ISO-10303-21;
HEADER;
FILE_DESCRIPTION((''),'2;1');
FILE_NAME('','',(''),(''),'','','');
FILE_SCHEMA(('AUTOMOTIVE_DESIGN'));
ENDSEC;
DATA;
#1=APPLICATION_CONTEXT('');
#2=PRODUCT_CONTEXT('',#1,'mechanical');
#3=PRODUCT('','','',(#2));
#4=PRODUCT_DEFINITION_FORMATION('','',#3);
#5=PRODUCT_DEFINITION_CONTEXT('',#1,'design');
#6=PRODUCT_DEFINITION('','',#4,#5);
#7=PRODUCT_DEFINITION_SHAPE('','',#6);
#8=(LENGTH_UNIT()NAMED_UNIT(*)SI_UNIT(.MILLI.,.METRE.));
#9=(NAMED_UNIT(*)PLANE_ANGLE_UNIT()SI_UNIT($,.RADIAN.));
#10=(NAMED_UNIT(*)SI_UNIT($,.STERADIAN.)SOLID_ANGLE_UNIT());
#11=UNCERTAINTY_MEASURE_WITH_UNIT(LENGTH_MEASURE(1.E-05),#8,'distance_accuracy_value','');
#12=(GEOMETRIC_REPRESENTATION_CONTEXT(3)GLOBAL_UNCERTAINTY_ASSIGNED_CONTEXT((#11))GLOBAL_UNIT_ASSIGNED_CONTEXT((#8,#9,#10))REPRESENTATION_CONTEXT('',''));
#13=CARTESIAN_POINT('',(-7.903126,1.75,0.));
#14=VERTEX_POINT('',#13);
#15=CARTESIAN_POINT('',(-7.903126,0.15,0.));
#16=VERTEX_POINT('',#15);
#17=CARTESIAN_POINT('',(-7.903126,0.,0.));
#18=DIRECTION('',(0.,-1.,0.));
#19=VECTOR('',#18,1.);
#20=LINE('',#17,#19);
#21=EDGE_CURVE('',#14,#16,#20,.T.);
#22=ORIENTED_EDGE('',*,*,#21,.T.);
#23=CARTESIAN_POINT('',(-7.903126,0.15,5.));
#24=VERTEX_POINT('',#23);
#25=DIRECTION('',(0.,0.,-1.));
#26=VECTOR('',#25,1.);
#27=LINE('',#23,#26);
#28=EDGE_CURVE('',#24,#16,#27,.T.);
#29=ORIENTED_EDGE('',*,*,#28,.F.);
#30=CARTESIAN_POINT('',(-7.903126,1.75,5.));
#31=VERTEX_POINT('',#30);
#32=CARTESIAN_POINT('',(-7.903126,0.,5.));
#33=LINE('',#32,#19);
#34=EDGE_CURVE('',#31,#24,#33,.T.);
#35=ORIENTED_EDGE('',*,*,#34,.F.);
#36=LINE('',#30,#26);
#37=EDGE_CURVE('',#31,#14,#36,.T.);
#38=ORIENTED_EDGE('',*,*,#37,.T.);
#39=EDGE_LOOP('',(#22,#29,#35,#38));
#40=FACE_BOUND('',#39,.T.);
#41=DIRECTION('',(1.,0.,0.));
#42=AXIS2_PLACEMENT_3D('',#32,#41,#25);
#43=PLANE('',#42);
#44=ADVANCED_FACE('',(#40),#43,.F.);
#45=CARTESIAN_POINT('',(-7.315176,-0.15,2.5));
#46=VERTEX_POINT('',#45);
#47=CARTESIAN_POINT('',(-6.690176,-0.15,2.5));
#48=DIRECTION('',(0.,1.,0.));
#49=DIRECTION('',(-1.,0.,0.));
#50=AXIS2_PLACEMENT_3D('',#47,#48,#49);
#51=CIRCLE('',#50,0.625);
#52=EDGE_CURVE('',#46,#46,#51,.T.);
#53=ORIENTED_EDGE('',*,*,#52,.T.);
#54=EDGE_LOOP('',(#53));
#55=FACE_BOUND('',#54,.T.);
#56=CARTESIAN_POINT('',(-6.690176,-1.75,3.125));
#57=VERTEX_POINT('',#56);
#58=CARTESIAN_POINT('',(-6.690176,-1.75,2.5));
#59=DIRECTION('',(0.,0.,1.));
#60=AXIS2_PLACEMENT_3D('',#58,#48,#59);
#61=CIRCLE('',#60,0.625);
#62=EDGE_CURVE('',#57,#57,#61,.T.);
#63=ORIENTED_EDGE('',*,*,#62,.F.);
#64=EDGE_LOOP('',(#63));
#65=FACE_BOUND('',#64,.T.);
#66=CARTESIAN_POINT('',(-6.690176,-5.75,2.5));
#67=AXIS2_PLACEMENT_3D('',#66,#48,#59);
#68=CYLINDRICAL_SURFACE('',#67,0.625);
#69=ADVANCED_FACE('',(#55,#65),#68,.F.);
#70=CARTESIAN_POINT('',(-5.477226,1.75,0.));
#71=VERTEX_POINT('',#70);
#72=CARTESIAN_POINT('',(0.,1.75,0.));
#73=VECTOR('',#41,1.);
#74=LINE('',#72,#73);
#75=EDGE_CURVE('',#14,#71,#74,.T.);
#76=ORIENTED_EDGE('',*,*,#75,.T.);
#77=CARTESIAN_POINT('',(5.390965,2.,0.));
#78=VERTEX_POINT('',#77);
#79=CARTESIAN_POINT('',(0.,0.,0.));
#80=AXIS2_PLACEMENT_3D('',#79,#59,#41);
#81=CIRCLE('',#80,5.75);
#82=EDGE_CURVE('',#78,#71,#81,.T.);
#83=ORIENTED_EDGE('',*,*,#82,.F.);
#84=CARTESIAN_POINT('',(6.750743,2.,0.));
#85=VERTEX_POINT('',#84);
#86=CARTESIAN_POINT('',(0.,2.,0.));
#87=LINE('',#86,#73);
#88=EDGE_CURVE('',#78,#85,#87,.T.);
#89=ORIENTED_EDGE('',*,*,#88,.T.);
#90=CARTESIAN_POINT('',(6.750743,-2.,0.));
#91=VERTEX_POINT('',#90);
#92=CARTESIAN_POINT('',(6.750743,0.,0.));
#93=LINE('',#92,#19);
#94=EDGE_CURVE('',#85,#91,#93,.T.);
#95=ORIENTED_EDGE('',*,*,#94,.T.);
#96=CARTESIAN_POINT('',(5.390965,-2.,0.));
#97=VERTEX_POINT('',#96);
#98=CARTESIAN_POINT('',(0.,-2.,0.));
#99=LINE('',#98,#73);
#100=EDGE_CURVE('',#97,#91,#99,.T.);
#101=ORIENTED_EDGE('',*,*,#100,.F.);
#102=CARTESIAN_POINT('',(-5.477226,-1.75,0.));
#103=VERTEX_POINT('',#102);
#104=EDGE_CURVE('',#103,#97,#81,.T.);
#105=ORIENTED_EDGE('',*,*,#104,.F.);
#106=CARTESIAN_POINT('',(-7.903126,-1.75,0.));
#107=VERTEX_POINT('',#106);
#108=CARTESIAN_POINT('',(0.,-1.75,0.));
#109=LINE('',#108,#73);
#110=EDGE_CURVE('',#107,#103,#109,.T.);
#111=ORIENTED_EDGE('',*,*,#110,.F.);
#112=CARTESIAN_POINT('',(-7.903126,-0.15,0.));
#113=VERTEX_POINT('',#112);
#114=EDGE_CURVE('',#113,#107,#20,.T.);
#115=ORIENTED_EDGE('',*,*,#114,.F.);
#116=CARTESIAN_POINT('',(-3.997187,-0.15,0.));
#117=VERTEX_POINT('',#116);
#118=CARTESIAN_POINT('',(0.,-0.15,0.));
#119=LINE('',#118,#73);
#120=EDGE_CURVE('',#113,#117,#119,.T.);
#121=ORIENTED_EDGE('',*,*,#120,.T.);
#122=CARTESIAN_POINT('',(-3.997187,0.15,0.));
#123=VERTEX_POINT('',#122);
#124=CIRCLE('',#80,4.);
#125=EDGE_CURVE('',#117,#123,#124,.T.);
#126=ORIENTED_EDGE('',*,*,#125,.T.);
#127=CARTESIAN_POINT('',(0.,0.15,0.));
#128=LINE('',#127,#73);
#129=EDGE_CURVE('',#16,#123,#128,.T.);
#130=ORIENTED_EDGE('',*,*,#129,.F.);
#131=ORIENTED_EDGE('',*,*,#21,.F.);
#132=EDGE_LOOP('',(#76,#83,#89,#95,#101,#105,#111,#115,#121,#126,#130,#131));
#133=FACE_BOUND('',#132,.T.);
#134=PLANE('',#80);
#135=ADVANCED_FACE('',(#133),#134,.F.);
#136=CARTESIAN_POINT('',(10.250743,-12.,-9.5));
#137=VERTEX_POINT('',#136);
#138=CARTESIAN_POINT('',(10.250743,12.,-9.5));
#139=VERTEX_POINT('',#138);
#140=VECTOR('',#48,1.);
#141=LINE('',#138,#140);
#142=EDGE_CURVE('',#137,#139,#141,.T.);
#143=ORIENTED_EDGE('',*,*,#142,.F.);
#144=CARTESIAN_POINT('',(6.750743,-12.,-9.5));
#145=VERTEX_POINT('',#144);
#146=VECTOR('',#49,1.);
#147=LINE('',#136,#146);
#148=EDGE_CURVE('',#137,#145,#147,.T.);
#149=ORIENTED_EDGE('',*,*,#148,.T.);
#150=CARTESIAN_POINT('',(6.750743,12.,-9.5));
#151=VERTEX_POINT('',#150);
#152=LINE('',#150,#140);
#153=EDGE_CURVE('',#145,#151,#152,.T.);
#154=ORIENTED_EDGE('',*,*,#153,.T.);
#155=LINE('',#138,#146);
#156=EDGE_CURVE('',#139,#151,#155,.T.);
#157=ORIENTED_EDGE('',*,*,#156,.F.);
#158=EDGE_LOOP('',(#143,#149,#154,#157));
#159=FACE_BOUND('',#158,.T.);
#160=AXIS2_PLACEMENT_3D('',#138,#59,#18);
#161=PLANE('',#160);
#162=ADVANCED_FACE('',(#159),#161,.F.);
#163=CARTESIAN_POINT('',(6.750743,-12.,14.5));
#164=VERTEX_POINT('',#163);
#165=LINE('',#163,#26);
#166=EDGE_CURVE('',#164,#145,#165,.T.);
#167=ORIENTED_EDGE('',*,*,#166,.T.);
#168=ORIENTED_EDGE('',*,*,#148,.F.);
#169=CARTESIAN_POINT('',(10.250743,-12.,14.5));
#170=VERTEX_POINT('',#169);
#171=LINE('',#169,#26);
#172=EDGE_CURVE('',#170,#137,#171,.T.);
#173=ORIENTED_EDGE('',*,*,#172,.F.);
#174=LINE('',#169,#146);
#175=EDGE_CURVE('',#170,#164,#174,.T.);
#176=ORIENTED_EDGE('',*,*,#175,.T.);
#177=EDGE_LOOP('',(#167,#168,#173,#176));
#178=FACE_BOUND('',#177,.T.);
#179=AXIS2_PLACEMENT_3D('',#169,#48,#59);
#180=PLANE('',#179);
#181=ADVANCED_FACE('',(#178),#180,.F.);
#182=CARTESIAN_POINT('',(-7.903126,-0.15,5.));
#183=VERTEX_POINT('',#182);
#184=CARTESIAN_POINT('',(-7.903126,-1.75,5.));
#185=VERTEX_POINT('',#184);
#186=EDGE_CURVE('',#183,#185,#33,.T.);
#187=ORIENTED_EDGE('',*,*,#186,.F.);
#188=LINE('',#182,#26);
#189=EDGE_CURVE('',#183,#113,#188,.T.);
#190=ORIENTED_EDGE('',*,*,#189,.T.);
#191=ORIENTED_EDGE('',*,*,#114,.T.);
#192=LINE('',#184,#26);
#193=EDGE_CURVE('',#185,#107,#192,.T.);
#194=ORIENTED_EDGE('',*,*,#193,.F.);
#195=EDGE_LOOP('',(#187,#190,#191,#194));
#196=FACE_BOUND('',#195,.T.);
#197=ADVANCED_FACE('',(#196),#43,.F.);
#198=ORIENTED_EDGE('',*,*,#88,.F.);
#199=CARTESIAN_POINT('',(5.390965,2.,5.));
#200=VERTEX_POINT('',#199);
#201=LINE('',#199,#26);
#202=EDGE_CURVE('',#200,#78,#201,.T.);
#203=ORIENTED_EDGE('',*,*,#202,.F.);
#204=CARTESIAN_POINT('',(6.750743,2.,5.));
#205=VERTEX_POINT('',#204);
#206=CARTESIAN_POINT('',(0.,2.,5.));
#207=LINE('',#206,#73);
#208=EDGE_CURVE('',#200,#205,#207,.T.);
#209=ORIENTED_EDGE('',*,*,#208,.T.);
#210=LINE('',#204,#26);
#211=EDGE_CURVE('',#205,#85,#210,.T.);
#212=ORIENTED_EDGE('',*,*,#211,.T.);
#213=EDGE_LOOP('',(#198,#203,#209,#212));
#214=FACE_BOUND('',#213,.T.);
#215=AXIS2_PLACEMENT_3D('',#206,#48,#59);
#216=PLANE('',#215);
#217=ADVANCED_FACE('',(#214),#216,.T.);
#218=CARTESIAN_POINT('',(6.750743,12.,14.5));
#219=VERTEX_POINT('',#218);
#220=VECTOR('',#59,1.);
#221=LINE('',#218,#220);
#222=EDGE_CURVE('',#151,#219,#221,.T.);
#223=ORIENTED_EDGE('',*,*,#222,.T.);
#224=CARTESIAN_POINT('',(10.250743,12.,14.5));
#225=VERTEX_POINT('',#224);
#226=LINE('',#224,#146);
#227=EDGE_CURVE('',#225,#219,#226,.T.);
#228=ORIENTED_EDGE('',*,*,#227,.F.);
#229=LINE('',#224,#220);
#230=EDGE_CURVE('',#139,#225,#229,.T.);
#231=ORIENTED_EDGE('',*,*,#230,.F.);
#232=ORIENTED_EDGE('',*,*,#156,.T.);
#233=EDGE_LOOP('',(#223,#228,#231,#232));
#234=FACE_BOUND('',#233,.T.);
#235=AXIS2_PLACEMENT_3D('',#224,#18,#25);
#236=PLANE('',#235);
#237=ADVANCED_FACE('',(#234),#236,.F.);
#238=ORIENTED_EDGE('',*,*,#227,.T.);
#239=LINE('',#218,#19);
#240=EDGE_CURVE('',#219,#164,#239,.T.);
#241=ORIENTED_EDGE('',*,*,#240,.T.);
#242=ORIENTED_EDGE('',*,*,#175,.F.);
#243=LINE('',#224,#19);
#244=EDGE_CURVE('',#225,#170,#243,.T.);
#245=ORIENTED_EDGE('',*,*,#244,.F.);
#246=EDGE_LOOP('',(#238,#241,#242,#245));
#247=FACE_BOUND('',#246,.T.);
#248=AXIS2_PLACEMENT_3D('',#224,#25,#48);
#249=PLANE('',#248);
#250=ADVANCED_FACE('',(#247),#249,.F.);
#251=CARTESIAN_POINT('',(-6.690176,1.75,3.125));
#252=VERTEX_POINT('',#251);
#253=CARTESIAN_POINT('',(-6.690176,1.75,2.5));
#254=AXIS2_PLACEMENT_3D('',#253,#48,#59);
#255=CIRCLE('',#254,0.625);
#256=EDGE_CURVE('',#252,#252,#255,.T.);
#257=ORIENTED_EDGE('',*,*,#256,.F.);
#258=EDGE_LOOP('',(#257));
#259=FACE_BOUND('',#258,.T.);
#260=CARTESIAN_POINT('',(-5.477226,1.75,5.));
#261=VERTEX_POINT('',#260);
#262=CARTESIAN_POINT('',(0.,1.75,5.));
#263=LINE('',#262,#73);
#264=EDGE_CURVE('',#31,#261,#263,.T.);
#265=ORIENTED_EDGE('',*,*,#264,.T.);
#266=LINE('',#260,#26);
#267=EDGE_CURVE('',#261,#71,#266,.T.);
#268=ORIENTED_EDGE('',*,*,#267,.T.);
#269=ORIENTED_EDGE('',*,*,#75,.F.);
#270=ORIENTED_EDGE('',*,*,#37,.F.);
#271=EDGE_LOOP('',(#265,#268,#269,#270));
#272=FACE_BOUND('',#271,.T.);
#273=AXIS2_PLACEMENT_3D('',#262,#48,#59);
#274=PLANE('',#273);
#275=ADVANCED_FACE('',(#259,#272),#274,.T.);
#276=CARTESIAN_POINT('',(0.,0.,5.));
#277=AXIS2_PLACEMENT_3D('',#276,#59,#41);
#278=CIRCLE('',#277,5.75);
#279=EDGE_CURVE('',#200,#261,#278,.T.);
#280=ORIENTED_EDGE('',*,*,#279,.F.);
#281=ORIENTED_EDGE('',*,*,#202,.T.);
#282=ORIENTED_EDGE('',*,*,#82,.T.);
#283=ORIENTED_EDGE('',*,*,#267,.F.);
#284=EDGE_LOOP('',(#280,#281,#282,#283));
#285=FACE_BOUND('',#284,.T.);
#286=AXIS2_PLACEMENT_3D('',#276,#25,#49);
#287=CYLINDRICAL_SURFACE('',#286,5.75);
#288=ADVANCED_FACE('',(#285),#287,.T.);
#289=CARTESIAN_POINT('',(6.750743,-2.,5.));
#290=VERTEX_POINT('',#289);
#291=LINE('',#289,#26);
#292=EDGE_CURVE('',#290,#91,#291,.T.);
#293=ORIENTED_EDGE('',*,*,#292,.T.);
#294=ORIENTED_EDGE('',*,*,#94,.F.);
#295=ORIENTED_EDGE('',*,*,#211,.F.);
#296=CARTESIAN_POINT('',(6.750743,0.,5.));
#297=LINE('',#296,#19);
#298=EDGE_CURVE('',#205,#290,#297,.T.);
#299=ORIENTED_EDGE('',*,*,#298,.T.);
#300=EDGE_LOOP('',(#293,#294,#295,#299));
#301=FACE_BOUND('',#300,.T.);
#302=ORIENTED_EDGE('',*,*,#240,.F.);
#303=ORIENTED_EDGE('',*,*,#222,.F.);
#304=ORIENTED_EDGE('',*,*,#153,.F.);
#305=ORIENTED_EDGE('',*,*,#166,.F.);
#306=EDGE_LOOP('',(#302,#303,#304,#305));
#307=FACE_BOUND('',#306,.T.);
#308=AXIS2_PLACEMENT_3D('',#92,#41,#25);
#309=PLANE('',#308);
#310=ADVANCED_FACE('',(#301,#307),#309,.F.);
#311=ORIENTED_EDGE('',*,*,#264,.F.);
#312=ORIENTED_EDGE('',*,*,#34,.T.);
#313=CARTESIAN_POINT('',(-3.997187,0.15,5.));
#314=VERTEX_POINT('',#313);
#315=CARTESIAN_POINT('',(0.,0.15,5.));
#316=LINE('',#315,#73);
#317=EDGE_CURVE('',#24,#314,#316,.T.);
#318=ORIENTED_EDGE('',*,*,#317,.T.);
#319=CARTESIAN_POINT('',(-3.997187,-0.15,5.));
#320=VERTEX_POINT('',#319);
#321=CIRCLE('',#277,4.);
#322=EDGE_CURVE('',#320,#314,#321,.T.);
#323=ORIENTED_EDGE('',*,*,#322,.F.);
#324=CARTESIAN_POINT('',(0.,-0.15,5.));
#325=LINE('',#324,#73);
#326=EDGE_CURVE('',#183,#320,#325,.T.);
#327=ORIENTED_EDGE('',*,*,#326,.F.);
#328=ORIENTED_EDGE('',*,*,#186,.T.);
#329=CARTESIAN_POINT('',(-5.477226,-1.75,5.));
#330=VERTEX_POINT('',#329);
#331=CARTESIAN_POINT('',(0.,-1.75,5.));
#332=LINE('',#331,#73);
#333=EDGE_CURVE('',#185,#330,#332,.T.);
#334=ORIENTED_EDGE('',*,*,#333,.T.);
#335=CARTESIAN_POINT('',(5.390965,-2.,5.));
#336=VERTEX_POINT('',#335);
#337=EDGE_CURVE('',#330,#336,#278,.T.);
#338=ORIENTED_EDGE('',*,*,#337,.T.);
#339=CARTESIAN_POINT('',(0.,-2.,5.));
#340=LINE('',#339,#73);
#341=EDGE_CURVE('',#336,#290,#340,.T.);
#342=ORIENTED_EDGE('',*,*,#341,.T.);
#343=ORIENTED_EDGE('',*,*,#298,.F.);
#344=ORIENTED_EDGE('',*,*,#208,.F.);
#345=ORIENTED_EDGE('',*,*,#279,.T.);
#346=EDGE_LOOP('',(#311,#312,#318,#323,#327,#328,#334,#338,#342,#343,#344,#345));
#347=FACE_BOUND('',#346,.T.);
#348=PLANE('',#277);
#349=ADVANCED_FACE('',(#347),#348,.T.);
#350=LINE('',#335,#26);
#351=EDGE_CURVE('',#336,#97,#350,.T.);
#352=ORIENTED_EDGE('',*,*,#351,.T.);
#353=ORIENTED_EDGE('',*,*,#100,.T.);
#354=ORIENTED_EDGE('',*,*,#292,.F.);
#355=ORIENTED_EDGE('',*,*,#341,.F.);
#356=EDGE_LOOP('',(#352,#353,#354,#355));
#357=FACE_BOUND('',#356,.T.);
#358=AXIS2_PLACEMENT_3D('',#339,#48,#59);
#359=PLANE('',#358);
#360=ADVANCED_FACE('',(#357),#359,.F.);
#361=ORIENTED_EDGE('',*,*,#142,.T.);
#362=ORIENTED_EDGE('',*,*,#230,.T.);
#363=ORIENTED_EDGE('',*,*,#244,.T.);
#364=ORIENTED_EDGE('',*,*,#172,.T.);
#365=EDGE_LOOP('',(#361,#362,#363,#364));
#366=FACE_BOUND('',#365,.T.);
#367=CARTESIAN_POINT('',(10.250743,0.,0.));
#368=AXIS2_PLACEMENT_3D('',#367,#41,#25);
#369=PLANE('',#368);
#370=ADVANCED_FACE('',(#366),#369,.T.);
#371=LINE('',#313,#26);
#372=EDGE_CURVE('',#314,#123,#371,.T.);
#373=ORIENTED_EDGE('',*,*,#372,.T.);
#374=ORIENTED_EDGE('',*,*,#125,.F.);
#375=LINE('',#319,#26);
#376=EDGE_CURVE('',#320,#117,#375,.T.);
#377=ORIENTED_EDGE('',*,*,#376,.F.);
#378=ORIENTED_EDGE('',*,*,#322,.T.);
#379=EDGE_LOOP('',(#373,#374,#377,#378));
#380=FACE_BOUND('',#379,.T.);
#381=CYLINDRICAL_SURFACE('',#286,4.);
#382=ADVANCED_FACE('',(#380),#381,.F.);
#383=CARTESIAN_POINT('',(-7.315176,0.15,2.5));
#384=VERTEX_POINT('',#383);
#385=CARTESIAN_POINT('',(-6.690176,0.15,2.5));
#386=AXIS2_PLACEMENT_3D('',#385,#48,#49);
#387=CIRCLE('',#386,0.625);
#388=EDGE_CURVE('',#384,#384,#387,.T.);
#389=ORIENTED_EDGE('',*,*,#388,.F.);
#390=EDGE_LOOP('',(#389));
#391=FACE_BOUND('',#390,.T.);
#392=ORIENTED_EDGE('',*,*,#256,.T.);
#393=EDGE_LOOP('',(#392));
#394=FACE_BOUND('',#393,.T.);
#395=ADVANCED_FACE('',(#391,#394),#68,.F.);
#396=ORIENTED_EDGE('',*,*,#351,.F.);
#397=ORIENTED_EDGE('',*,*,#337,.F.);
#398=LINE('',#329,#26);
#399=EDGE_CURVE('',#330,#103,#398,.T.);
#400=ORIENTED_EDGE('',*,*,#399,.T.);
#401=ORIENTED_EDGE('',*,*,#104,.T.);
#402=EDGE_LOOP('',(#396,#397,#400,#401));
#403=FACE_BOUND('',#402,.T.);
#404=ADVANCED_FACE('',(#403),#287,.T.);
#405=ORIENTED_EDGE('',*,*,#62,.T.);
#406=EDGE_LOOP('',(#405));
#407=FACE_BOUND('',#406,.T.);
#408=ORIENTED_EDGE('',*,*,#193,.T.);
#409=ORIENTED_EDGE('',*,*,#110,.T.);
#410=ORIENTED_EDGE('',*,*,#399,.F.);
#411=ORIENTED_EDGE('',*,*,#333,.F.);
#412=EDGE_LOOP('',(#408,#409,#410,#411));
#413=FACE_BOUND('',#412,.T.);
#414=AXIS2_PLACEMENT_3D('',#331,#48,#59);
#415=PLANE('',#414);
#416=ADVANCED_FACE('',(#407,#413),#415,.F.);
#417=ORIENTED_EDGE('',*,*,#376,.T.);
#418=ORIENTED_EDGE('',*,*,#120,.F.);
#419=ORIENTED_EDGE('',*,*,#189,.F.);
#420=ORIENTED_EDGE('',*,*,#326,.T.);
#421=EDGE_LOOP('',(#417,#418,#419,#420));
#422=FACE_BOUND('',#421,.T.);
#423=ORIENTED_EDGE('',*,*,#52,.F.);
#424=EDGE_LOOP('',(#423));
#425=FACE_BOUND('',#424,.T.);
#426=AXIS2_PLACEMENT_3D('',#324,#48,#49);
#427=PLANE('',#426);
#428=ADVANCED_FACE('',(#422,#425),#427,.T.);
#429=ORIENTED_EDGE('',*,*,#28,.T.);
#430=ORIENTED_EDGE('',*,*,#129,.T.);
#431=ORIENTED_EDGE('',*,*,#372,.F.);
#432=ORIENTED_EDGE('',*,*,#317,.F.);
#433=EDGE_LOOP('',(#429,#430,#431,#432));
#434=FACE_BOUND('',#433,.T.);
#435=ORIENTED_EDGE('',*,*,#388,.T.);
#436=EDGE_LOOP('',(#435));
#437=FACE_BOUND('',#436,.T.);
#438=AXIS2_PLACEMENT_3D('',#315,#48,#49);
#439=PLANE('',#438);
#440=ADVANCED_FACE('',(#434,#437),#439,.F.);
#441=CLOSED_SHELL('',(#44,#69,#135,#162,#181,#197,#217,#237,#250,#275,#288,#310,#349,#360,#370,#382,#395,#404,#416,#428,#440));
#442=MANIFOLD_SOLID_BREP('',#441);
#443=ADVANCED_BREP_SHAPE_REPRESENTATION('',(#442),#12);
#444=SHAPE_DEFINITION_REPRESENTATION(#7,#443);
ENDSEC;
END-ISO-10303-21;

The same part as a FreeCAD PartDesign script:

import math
import FreeCAD as App
import Part
import Sketcher

V = App.Vector
Q = App.Units.Quantity


def add_polygon(sketch, points):
    """Adds a closed chain of lines whose ends are joined by coincident constraints."""
    first, n = sketch.GeometryCount, len(points)
    for a, b in zip(points, points[1:] + points[:1]):
        sketch.addGeometry(Part.LineSegment(App.Vector(*a, 0), App.Vector(*b, 0)), False)
    for i in range(n):
        sketch.addConstraint(Sketcher.Constraint("Coincident", first + i, 2, first + (i + 1) % n, 1))

doc = App.newDocument("Part")
body = doc.addObject("PartDesign::Body", "Body")

sketch1 = body.newObject("Sketcher::SketchObject", "Sketch")
sketch1.AttachmentSupport = (doc.getObject("XY_Plane"), [""])
sketch1.MapMode = "FlatFace"
sketch1.addGeometry([
    Part.ArcOfCircle(Part.Circle(V(0, 0, 0), V(0, 0, 1), 5.8), math.radians(20), math.radians(162)),
    Part.LineSegment(V(-5.5, 1.8, 0), V(-7.9, 1.8, 0)),
    Part.LineSegment(V(-7.9, 1.8, 0), V(-7.9, 0.1, 0)),
    Part.LineSegment(V(-7.9, 0.1, 0), V(-4, 0.1, 0)),
    Part.ArcOfCircle(Part.Circle(V(0, 0, 0), V(0, 0, 1), 4), math.radians(154), math.radians(178)),
    Part.ArcOfCircle(Part.Circle(V(0, 0, 0), V(0, 0, 1), 4), math.radians(0), math.radians(154)),
    Part.ArcOfCircle(Part.Circle(V(0, 0, 0), V(0, 0, 1), 4), math.radians(-154), math.radians(0)),
    Part.ArcOfCircle(Part.Circle(V(0, 0, 0), V(0, 0, 1), 4), math.radians(-178), math.radians(-154)),
    Part.LineSegment(V(-4, -0.1, 0), V(-7.9, -0.1, 0)),
    Part.LineSegment(V(-7.9, -0.1, 0), V(-7.9, -1.8, 0)),
    Part.LineSegment(V(-7.9, -1.8, 0), V(-5.5, -1.8, 0)),
    Part.ArcOfCircle(Part.Circle(V(0, 0, 0), V(0, 0, 1), 5.8), math.radians(-162), math.radians(-20)),
    Part.LineSegment(V(5.4, -2, 0), V(6.8, -2, 0)),
    Part.LineSegment(V(6.8, -2, 0), V(6.8, 2, 0)),
    Part.LineSegment(V(6.8, 2, 0), V(5.4, 2, 0)),
], False)
sketch1.addConstraint([
    Sketcher.Constraint("Coincident", 0, 2, 1, 1),
    Sketcher.Constraint("Coincident", 1, 2, 2, 1),
    Sketcher.Constraint("Coincident", 2, 2, 3, 1),
    Sketcher.Constraint("Coincident", 3, 2, 4, 2),
    Sketcher.Constraint("Tangent", 4, 1, 5, 2),
    Sketcher.Constraint("Tangent", 5, 1, 6, 2),
    Sketcher.Constraint("Tangent", 6, 1, 7, 2),
    Sketcher.Constraint("Coincident", 7, 1, 8, 1),
    Sketcher.Constraint("Coincident", 8, 2, 9, 1),
    Sketcher.Constraint("Coincident", 9, 2, 10, 1),
    Sketcher.Constraint("Coincident", 10, 2, 11, 1),
    Sketcher.Constraint("Coincident", 11, 2, 12, 1),
    Sketcher.Constraint("Coincident", 12, 2, 13, 1),
    Sketcher.Constraint("Coincident", 13, 2, 14, 1),
    Sketcher.Constraint("Coincident", 14, 2, 0, 1),
    Sketcher.Constraint("Horizontal", 1),
    Sketcher.Constraint("Vertical", 2),
    Sketcher.Constraint("Horizontal", 3),
    Sketcher.Constraint("Horizontal", 8),
    Sketcher.Constraint("Vertical", 9),
    Sketcher.Constraint("Horizontal", 10),
    Sketcher.Constraint("Horizontal", 12),
    Sketcher.Constraint("Vertical", 13),
    Sketcher.Constraint("Horizontal", 14),
    Sketcher.Constraint("Coincident", 0, 3, -1, 1),
    Sketcher.Constraint("Coincident", 4, 3, -1, 1),
    Sketcher.Constraint("Coincident", 6, 3, -1, 1),
    Sketcher.Constraint("Coincident", 11, 3, -1, 1),
    Sketcher.Constraint("Equal", 6, 7),
    Sketcher.Constraint("Equal", 0, 11),
    Sketcher.Constraint("Symmetric", 2, 2, 8, 2, -1),
    Sketcher.Constraint("PointOnObject", 5, 1, -1),
    Sketcher.Constraint("Horizontal", 1, 2, 4, 1),
    Sketcher.Constraint("Horizontal", 6, 1, 9, 2),
    Sketcher.Constraint("Vertical", 4, 1, 6, 1),
    Sketcher.Constraint("Vertical", 11, 2, 14, 2),
    Sketcher.Constraint("Radius", 4, Q("4 mm")),
    Sketcher.Constraint("DistanceY", 13, 1, 13, 2, Q("4 mm")),
    Sketcher.Constraint("Radius", 0, Q("5.75 mm")),
    Sketcher.Constraint("DistanceY", 2, 2, 2, 1, Q("1.6 mm")),
    Sketcher.Constraint("DistanceY", 6, 1, 3, 2, Q("1.9 mm")),
    Sketcher.Constraint("DistanceX", 1, 2, 1, 1, Q("2.425901 mm")),
    Sketcher.Constraint("DistanceX", 12, 1, 12, 2, Q("1.359778 mm")),
])
pad1 = body.newObject("PartDesign::Pad", "Pad")
pad1.Profile = sketch1
pad1.Length = 5

sketch2 = body.newObject("Sketcher::SketchObject", "Sketch001")
sketch2.AttachmentSupport = (doc.getObject("XZ_Plane"), [""])
sketch2.MapMode = "FlatFace"
sketch2.addGeometry(Part.Circle(V(-6.7, 2.5, 0), V(0, 0, 1), 0.6), False)
sketch2.addConstraint([
    Sketcher.Constraint("Diameter", 0, Q("1.25 mm")),
    Sketcher.Constraint("DistanceY", -1, 1, 0, 3, Q("2.5 mm")),
    Sketcher.Constraint("DistanceX", 0, 3, -1, 1, Q("6.690176 mm")),
])
pocket1 = body.newObject("PartDesign::Pocket", "Pocket")
pocket1.Profile = sketch2
pocket1.Type = "ThroughAll"
pocket1.Midplane = True

sketch3 = body.newObject("Sketcher::SketchObject", "Sketch002")
sketch3.AttachmentSupport = (doc.getObject("YZ_Plane"), [""])
sketch3.MapMode = "FlatFace"
sketch3.AttachmentOffset = App.Placement(V(0, 0, 6.750743), App.Rotation())
add_polygon(sketch3, [(12, 14), (-12, 14), (-12, -10), (12, -10)])
sketch3.addConstraint([
    Sketcher.Constraint("Horizontal", 0),
    Sketcher.Constraint("Vertical", 1),
    Sketcher.Constraint("Horizontal", 2),
    Sketcher.Constraint("Vertical", 3),
    Sketcher.Constraint("Equal", 2, 1),
    Sketcher.Constraint("DistanceX", 0, 2, 0, 1, Q("24 mm")),
    Sketcher.Constraint("DistanceX", 0, 2, -1, 1, Q("12 mm")),
    Sketcher.Constraint("DistanceY", -1, 1, 0, 2, Q("14.5 mm")),
])
pad2 = body.newObject("PartDesign::Pad", "Pad001")
pad2.Profile = sketch3
pad2.Length = 3.5

doc.recompute()
